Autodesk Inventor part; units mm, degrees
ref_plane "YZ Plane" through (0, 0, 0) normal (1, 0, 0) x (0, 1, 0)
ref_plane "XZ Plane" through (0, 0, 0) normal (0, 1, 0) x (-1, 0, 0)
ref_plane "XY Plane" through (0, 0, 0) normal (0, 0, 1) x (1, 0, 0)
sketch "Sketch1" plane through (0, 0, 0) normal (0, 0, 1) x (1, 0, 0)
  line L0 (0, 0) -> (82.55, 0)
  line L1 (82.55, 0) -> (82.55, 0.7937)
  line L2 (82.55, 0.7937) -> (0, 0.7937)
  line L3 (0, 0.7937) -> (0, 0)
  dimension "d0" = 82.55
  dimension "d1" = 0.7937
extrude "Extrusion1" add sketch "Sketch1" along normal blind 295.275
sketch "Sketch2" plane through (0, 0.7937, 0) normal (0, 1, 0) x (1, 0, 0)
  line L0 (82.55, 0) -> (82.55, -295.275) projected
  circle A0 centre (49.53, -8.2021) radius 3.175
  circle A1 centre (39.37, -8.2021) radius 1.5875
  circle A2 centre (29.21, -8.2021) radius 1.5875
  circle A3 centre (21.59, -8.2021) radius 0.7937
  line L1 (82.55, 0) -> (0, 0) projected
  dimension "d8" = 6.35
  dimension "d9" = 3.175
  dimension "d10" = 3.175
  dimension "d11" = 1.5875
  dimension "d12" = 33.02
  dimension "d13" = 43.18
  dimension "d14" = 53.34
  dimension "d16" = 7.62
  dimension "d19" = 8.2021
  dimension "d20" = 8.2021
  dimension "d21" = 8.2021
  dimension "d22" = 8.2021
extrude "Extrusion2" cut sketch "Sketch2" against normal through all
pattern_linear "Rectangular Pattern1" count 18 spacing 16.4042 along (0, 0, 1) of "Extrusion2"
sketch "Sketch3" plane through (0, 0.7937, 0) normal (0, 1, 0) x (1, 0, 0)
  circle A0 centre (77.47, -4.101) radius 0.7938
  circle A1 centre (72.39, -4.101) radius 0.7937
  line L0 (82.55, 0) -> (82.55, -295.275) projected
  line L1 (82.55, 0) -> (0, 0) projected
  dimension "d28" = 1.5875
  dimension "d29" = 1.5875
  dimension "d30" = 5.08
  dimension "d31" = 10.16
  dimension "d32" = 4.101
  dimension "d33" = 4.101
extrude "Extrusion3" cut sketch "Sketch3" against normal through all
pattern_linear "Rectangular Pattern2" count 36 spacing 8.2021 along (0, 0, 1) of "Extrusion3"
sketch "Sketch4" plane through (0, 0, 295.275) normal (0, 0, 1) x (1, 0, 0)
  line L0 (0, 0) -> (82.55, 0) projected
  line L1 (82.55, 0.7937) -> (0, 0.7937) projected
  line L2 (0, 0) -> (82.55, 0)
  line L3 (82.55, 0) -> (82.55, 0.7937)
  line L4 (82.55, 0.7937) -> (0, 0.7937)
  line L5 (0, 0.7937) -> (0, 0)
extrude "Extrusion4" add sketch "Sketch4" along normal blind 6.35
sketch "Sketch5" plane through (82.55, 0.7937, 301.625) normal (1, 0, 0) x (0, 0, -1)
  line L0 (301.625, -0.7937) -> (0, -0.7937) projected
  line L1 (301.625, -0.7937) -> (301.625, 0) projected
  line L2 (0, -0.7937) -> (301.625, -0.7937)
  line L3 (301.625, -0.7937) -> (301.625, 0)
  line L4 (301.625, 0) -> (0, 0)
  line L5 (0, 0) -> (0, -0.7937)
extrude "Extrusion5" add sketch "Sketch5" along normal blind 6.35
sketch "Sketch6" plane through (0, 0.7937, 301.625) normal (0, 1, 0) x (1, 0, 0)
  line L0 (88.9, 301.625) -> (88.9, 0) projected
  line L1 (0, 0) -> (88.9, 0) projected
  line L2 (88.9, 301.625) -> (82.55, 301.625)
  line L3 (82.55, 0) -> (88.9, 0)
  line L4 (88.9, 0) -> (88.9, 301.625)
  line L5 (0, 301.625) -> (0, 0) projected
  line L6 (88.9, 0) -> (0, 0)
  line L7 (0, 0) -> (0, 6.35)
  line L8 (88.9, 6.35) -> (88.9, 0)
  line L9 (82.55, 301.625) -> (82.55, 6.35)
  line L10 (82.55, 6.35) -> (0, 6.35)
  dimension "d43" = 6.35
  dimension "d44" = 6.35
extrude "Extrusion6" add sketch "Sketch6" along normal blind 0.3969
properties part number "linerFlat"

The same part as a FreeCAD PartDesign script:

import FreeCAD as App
import Part
import Sketcher
from FreeCAD import Vector
Q = App.Units.Quantity


def add_polygon(sketch, points):
    """Adds a closed chain of lines whose ends are joined by coincident constraints."""
    first, n = sketch.GeometryCount, len(points)
    for a, b in zip(points, points[1:] + points[:1]):
        sketch.addGeometry(Part.LineSegment(App.Vector(*a, 0), App.Vector(*b, 0)), False)
    for i in range(n):
        sketch.addConstraint(Sketcher.Constraint("Coincident", first + i, 2, first + (i + 1) % n, 1))

doc = App.newDocument("Part")
body = doc.addObject("PartDesign::Body", "Body")

sketch1 = doc.addObject("Sketcher::SketchObject", "Sketch")
body.addObject(sketch1)
sketch1.AttachmentSupport = (doc.XY_Plane, [""])
sketch1.MapMode = "FlatFace"
add_polygon(sketch1, [(0, 0.7937), (0, 0), (82.55, 0), (82.55, 0.7937)])
sketch1.addConstraint([
    Sketcher.Constraint("Vertical", 0),
    Sketcher.Constraint("Horizontal", 1),
    Sketcher.Constraint("Vertical", 2),
    Sketcher.Constraint("Horizontal", 3),
    Sketcher.Constraint("Coincident", 0, 2, -1, 1),
    Sketcher.Constraint("DistanceX", 1, 1, 1, 2, Q("3.25 in")),
    Sketcher.Constraint("DistanceY", 0, 2, 0, 1, Q("0.031248 in")),
])
pad1 = doc.addObject("PartDesign::Pad", "Pad")
body.addObject(pad1)
pad1.Profile = sketch1
pad1.Length = Q("11.625 in")

sketch2 = doc.addObject("Sketcher::SketchObject", "Sketch001")
body.addObject(sketch2)
sketch2.AttachmentSupport = (doc.XZ_Plane, [""])
sketch2.MapMode = "FlatFace"
sketch2.AttachmentOffset = App.Placement(Vector(0, 0, -0.031248 * 25.4), App.Rotation())
sketch2.addGeometry([
    Part.Circle(Vector(49.53, 8.2021, 0), Vector(0, 0, 1), 3.175),
    Part.Circle(Vector(39.37, 8.2021, 0), Vector(0, 0, 1), 1.5875),
    Part.Circle(Vector(29.21, 8.2021, 0), Vector(0, 0, 1), 1.5875),
    Part.Circle(Vector(21.59, 8.2021, 0), Vector(0, 0, 1), 0.7937),
], False)
sketch2.addConstraint([
    Sketcher.Constraint("Equal", 1, 2),
    Sketcher.Constraint("Horizontal", 0, 3, 1, 3),
    Sketcher.Constraint("Horizontal", 1, 3, 2, 3),
    Sketcher.Constraint("Horizontal", 2, 3, 3, 3),
    Sketcher.Constraint("Diameter", 0, Q("0.25 in")),
    Sketcher.Constraint("Diameter", 1, Q("0.125 in")),
    Sketcher.Constraint("Diameter", 3, Q("0.0625 in")),
    Sketcher.Constraint("DistanceX", 3, 3, 2, 3, Q("0.3 in")),
    Sketcher.Constraint("DistanceX", 1, 3, 0, 3, Q("0.4 in")),
    Sketcher.Constraint("DistanceX", 2, 3, 1, 3, Q("0.4 in")),
    Sketcher.Constraint("DistanceX", -1, 1, 0, 3, Q("1.95 in")),
    Sketcher.Constraint("DistanceY", -1, 1, 0, 3, 8.202),
])
pocket1 = doc.addObject("PartDesign::Pocket", "Pocket")
body.addObject(pocket1)
pocket1.Profile = sketch2
pocket1.Type = "ThroughAll"
pocket1.Reversed = True
doc.recompute()

linearpattern = doc.addObject("PartDesign::LinearPattern", "LinearPattern")
body.addObject(linearpattern)
linearpattern.Originals = [pocket1]
linearpattern.Direction = (doc.Z_Axis, [""])
linearpattern.Mode = "offset"
linearpattern.Offset = 16.4042
linearpattern.Occurrences = 18
body.Tip = linearpattern

sketch3 = doc.addObject("Sketcher::SketchObject", "Sketch002")
body.addObject(sketch3)
sketch3.AttachmentSupport = (doc.XZ_Plane, [""])
sketch3.MapMode = "FlatFace"
sketch3.AttachmentOffset = App.Placement(Vector(0, 0, -0.031248 * 25.4), App.Rotation())
sketch3.addGeometry([
    Part.Circle(Vector(77.47, 4.101, 0), Vector(0, 0, 1), 0.7938),
    Part.Circle(Vector(72.39, 4.101, 0), Vector(0, 0, 1), 0.7937),
], False)
sketch3.addConstraint([
    Sketcher.Constraint("Equal", 0, 1),
    Sketcher.Constraint("Horizontal", 0, 3, 1, 3),
    Sketcher.Constraint("Diameter", 0, Q("0.0625 in")),
    Sketcher.Constraint("DistanceX", 1, 3, 0, 3, Q("0.2 in")),
    Sketcher.Constraint("DistanceX", -1, 1, 0, 3, Q("3.05 in")),
    Sketcher.Constraint("DistanceY", -1, 1, 0, 3, 4.101),
])
pocket2 = doc.addObject("PartDesign::Pocket", "Pocket001")
body.addObject(pocket2)
pocket2.Profile = sketch3
pocket2.Type = "ThroughAll"
pocket2.Reversed = True
doc.recompute()

linearpattern2 = doc.addObject("PartDesign::LinearPattern", "LinearPattern001")
body.addObject(linearpattern2)
linearpattern2.Originals = [pocket2]
linearpattern2.Direction = (doc.Z_Axis, [""])
linearpattern2.Mode = "offset"
linearpattern2.Offset = 8.2021
linearpattern2.Occurrences = 36
body.Tip = linearpattern2

sketch4 = doc.addObject("Sketcher::SketchObject", "Sketch003")
body.addObject(sketch4)
sketch4.AttachmentSupport = (doc.XY_Plane, [""])
sketch4.MapMode = "FlatFace"
sketch4.AttachmentOffset = App.Placement(Vector(0, 0, 11.625 * 25.4), App.Rotation())
add_polygon(sketch4, [(0, 0.7937), (0, 0), (82.55, 0), (82.55, 0.7937)])
sketch4.addConstraint([
    Sketcher.Constraint("Vertical", 0),
    Sketcher.Constraint("Horizontal", 1),
    Sketcher.Constraint("Vertical", 2),
    Sketcher.Constraint("Horizontal", 3),
    Sketcher.Constraint("Coincident", 0, 2, -1, 1),
    Sketcher.Constraint("DistanceX", 1, 1, 1, 2, Q("3.25 in")),
    Sketcher.Constraint("DistanceY", 0, 2, 0, 1, Q("0.031248 in")),
])
pad2 = doc.addObject("PartDesign::Pad", "Pad001")
body.addObject(pad2)
pad2.Profile = sketch4
pad2.Length = Q("0.25 in")

sketch5 = doc.addObject("Sketcher::SketchObject", "Sketch004")
body.addObject(sketch5)
sketch5.AttachmentSupport = (doc.YZ_Plane, [""])
sketch5.MapMode = "FlatFace"
sketch5.AttachmentOffset = App.Placement(Vector(0, 0, 3.25 * 25.4), App.Rotation())
add_polygon(sketch5, [(0, 301.625), (0, 0), (0.7937, 0), (0.7937, 301.625)])
sketch5.addConstraint([
    Sketcher.Constraint("Vertical", 0),
    Sketcher.Constraint("Horizontal", 1),
    Sketcher.Constraint("Vertical", 2),
    Sketcher.Constraint("Horizontal", 3),
    Sketcher.Constraint("Coincident", 0, 2, -1, 1),
    Sketcher.Constraint("DistanceX", 1, 1, 1, 2, Q("0.031248 in")),
    Sketcher.Constraint("DistanceY", 0, 2, 0, 1, Q("11.875 in")),
])
pad3 = doc.addObject("PartDesign::Pad", "Pad002")
body.addObject(pad3)
pad3.Profile = sketch5
pad3.Length = Q("0.25 in")

sketch6 = doc.addObject("Sketcher::SketchObject", "Sketch005")
body.addObject(sketch6)
sketch6.AttachmentSupport = (doc.XZ_Plane, [""])
sketch6.MapMode = "FlatFace"
sketch6.AttachmentOffset = App.Placement(Vector(0, 0, -0.031248 * 25.4), App.Rotation())
add_polygon(sketch6, [(88.9, 301.625), (88.9, 0), (82.55, 0), (82.55, 295.275), (0, 295.275), (0, 301.625)])
sketch6.addConstraint([
    Sketcher.Constraint("Vertical", 0),
    Sketcher.Constraint("Horizontal", 1),
    Sketcher.Constraint("Vertical", 2),
    Sketcher.Constraint("Horizontal", 3),
    Sketcher.Constraint("Vertical", 4),
    Sketcher.Constraint("Horizontal", 5),
    Sketcher.Constraint("PointOnObject", 0, 2, -1),
    Sketcher.Constraint("PointOnObject", 3, 2, -2),
    Sketcher.Constraint("Equal", 1, 4),
    Sketcher.Constraint("DistanceX", 1, 2, 1, 1, Q("0.25 in")),
    Sketcher.Constraint("DistanceX", 5, 1, 5, 2, Q("3.5 in")),
    Sketcher.Constraint("DistanceY", 0, 2, 0, 1, Q("11.875 in")),
])
pad4 = doc.addObject("PartDesign::Pad", "Pad003")
body.addObject(pad4)
pad4.Profile = sketch6
pad4.Length = Q("0.015626 in")
pad4.Reversed = True

doc.recompute()
